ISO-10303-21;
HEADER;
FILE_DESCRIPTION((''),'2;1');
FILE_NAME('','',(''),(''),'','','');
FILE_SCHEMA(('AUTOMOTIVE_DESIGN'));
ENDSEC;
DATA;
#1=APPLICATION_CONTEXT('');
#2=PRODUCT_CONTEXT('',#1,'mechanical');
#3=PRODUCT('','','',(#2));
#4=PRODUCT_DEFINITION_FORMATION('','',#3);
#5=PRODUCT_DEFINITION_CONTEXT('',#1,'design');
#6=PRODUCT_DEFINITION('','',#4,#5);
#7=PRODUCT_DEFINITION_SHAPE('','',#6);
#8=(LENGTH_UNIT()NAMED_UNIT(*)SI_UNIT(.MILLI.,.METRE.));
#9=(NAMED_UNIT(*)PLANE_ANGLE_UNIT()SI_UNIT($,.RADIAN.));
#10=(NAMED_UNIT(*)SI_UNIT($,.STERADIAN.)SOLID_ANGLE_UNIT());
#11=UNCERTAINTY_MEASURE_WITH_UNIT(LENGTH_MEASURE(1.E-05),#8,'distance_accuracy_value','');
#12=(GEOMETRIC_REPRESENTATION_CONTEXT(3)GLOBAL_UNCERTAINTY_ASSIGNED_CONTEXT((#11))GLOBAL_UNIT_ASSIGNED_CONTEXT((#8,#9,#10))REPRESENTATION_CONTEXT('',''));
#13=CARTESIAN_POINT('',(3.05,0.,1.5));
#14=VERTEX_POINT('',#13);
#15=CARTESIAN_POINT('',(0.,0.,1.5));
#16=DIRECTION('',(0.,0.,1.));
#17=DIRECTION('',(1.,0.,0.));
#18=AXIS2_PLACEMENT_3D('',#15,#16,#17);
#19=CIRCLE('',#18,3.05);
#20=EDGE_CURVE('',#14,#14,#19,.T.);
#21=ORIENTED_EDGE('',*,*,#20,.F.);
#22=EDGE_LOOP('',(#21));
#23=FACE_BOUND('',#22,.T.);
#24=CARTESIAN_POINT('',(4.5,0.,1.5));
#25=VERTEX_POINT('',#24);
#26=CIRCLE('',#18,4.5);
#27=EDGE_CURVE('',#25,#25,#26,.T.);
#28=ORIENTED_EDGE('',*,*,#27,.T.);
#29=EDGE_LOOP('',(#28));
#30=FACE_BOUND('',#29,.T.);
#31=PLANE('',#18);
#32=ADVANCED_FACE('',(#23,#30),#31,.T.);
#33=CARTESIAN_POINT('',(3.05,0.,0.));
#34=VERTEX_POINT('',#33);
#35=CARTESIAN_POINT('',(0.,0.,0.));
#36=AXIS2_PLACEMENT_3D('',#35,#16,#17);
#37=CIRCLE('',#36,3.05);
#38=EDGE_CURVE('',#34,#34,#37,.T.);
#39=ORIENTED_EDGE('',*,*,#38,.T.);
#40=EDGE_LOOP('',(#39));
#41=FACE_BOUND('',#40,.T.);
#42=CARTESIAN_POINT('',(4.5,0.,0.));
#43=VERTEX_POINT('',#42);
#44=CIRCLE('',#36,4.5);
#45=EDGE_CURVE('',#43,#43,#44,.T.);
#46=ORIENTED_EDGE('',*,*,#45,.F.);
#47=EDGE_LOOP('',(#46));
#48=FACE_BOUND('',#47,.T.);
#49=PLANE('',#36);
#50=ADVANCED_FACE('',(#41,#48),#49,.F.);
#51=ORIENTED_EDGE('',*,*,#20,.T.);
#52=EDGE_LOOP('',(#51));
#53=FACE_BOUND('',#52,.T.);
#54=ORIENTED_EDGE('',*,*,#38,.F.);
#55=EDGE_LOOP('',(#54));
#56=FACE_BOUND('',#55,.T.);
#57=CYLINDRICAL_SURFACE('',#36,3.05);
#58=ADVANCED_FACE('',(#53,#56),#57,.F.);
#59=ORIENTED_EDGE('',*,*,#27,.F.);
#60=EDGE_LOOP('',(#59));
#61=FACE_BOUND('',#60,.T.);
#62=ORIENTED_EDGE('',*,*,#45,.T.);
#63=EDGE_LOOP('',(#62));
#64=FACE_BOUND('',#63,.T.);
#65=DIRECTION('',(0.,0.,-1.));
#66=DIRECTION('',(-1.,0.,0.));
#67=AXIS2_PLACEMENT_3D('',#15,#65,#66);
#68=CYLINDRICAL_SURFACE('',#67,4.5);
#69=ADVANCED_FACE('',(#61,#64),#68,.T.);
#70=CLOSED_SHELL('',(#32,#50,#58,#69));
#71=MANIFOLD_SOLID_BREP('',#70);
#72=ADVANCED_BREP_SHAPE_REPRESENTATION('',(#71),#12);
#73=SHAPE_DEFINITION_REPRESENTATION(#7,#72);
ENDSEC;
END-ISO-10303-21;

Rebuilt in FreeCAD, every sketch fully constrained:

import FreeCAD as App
import Part
import Sketcher

V = App.Vector
Q = App.Units.Quantity

doc = App.newDocument("Part")
params = doc.addObject("Spreadsheet::Sheet", "Params")
for row, (alias, value) in enumerate([
    ("sketch1_diameter", "9 mm"),
    ("pad1_length", "1.5 mm"),
    ("sketch2_diameter", "6.1 mm"),
], start=1):
    params.set(f"A{row}", alias)
    params.set(f"B{row}", "=" + value)
    params.setAlias(f"B{row}", alias)

body = doc.addObject("PartDesign::Body", "Body")

sketch1 = body.newObject("Sketcher::SketchObject", "Sketch")
sketch1.AttachmentSupport = (doc.getObject("XY_Plane"), [""])
sketch1.MapMode = "FlatFace"
sketch1.addGeometry(Part.Circle(V(0, 0, 0), V(0, 0, 1), 4.5), False)
sketch1.addConstraint([
    Sketcher.Constraint("Coincident", 0, 3, -1, 1),
    Sketcher.Constraint("Diameter", 0, Q("9 mm")),
])
sketch1.setExpression("Constraints[1]", "Params.sketch1_diameter")
pad1 = body.newObject("PartDesign::Pad", "Pad")
pad1.Profile = sketch1
pad1.setExpression("Length", "Params.pad1_length")

sketch2 = body.newObject("Sketcher::SketchObject", "Sketch001")
sketch2.AttachmentSupport = (doc.getObject("XY_Plane"), [""])
sketch2.MapMode = "FlatFace"
sketch2.AttachmentOffset = App.Placement(V(0, 0, 1.5), App.Rotation())
sketch2.addGeometry(Part.Circle(V(0, 0, 0), V(0, 0, 1), 3), False)
sketch2.addConstraint([
    Sketcher.Constraint("Coincident", 0, 3, -1, 1),
    Sketcher.Constraint("Diameter", 0, Q("6.1 mm")),
])
sketch2.setExpression("Constraints[1]", "Params.sketch2_diameter")
pocket1 = body.newObject("PartDesign::Pocket", "Pocket")
pocket1.Profile = sketch2
pocket1.Type = "ThroughAll"

doc.recompute()
